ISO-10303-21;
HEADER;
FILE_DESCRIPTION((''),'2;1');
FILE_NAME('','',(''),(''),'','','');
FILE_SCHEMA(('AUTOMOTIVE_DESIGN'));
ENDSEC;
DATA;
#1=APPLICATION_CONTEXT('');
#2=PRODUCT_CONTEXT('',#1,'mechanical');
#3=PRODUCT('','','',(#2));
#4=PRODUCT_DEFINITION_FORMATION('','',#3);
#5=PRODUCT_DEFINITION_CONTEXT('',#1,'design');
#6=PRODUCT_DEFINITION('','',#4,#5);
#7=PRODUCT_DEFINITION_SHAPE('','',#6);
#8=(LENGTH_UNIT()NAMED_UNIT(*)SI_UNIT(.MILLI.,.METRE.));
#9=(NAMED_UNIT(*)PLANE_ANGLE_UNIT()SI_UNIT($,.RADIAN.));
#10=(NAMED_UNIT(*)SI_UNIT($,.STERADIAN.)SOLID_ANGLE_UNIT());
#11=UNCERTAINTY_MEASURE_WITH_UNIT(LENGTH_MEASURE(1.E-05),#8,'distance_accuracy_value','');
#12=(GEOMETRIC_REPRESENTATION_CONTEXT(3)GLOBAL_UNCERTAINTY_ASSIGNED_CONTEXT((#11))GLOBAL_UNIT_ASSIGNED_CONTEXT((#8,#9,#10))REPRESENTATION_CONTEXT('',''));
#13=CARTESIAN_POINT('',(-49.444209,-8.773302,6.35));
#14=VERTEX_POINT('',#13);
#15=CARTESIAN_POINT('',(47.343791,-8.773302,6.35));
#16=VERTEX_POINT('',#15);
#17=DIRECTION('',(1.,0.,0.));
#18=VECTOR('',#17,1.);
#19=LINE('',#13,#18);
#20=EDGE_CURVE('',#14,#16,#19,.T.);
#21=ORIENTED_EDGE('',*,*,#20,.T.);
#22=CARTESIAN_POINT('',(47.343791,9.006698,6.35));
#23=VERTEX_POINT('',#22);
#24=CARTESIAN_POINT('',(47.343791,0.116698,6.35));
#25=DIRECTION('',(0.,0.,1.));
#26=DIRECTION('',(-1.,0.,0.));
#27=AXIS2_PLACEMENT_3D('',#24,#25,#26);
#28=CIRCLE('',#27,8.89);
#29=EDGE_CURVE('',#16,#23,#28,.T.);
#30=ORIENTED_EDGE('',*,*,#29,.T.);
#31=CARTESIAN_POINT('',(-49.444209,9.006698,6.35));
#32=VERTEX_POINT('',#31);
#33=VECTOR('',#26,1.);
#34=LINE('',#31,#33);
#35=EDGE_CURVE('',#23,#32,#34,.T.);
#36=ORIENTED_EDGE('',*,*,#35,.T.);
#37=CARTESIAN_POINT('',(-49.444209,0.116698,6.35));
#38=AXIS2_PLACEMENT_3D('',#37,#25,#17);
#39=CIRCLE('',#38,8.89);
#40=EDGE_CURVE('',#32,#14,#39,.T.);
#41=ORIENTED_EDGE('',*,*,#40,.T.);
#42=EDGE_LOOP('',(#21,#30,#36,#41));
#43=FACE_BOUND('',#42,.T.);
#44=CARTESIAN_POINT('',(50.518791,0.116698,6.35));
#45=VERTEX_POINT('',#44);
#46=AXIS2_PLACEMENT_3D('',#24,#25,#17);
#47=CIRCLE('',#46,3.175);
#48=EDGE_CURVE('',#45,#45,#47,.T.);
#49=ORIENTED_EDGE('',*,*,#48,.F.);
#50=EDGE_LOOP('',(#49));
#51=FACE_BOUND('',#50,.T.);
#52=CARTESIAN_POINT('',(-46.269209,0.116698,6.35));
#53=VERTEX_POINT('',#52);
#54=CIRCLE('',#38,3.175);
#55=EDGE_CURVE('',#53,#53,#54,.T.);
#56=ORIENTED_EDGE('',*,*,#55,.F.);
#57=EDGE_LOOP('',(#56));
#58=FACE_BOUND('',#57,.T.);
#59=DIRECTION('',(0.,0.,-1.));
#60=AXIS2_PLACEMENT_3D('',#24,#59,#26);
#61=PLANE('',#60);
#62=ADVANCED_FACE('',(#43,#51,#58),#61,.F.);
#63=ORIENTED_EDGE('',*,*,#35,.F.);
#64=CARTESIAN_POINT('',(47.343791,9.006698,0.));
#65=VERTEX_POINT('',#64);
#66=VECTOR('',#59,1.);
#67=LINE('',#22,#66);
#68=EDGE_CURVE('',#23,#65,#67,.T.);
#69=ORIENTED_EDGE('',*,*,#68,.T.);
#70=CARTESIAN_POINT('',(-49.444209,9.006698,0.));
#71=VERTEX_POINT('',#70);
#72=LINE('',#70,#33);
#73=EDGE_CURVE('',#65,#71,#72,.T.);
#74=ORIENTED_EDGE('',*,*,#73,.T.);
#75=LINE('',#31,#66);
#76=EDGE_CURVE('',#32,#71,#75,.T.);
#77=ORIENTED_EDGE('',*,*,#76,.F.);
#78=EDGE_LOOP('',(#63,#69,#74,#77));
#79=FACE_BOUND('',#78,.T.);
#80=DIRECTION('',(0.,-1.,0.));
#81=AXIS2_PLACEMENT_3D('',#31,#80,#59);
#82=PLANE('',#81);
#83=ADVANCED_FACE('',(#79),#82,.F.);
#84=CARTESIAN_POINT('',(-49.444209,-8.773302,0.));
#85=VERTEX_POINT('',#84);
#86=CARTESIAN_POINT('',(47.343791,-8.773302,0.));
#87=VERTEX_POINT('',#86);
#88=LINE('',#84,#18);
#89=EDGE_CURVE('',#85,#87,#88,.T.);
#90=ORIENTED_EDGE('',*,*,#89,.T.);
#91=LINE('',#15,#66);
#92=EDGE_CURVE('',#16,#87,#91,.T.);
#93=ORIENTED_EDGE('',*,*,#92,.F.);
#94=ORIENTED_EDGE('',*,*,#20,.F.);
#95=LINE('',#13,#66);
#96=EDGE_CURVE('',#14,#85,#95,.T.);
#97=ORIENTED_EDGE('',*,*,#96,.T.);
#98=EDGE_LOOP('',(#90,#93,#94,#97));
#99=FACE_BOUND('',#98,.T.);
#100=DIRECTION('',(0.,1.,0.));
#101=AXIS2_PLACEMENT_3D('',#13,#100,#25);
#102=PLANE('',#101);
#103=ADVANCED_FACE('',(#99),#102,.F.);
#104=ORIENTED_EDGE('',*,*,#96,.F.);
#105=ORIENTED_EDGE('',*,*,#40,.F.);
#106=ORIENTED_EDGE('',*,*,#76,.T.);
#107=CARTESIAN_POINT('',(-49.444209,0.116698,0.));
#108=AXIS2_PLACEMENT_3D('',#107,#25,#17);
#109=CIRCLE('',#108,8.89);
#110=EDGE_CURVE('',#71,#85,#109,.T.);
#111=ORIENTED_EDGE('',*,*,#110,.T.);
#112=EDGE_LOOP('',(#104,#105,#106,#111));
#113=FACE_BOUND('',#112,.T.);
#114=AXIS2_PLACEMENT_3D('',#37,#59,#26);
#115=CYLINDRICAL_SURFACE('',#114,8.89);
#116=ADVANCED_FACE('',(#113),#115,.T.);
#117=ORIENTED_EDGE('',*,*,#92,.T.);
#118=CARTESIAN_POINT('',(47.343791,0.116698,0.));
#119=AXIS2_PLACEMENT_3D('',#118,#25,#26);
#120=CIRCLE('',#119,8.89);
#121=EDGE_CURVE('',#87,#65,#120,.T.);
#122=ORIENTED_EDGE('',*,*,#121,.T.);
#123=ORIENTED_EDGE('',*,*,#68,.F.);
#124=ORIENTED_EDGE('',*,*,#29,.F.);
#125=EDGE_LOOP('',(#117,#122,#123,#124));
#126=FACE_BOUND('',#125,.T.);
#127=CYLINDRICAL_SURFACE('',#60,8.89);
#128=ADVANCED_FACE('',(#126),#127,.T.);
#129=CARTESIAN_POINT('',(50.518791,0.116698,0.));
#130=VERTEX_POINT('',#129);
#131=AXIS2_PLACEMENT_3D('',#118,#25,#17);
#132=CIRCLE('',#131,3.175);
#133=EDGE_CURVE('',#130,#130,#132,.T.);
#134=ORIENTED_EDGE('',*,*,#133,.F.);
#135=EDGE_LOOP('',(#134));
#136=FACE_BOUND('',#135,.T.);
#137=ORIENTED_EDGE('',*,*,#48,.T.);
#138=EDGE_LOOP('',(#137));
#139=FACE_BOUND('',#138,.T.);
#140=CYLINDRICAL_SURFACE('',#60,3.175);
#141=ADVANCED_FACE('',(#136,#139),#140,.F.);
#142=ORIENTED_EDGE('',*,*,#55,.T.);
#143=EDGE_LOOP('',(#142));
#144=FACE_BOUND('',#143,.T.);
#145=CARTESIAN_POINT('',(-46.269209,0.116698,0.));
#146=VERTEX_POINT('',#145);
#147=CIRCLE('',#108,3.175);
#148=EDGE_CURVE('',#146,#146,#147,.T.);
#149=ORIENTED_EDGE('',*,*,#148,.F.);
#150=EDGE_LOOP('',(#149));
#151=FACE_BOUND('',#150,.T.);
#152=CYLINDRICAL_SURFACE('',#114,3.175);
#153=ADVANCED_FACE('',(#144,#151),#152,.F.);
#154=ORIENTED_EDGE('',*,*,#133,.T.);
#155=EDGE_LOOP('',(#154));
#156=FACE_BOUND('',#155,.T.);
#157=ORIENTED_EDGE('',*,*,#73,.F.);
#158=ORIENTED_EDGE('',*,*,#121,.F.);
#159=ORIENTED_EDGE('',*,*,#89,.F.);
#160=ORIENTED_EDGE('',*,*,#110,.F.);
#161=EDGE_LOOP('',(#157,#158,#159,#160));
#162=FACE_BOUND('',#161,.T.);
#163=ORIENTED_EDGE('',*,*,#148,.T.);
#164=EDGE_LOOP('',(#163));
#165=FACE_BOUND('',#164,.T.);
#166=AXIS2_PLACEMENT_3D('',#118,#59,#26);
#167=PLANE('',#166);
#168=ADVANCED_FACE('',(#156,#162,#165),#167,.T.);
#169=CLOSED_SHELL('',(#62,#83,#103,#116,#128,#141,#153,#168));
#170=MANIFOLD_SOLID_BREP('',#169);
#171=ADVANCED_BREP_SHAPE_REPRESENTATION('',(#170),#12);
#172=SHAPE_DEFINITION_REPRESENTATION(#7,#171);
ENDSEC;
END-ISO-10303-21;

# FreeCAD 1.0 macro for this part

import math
import FreeCAD as App
import Part
import Sketcher

V = App.Vector
Q = App.Units.Quantity

doc = App.newDocument("Part")
body = doc.addObject("PartDesign::Body", "Body")

# Sketch on XY plane
sketch1 = doc.addObject("Sketcher::SketchObject", "Sketch")
body.addObject(sketch1)
sketch1.AttachmentSupport = (doc.XY_Plane, [""])
sketch1.MapMode = "FlatFace"
sketch1.addGeometry([
    Part.LineSegment(V(-49.444209, -8.773302, 0), V(47.343791, -8.773302, 0)),  # 0
    Part.ArcOfCircle(Part.Circle(V(47.343791, 0.116698, 0), V(0, 0, 1), 8.89), math.radians(-90), math.radians(90)),  # 1
    Part.LineSegment(V(47.343791, 9.006698, 0), V(-49.444209, 9.006698, 0)),  # 2
    Part.ArcOfCircle(Part.Circle(V(-49.444209, 0.116698, 0), V(0, 0, 1), 8.89), math.radians(90), math.radians(270)),  # 3
    Part.Circle(V(-49.444209, 0.116698, 0), V(0, 0, 1), 3.175),  # 4
    Part.Circle(V(47.343791, 0.116698, 0), V(0, 0, 1), 3.175),  # 5
], False)
sketch1.addConstraint([
    Sketcher.Constraint("Tangent", 0, 2, 1, 1),
    Sketcher.Constraint("Tangent", 1, 2, 2, 1),
    Sketcher.Constraint("Tangent", 2, 2, 3, 1),
    Sketcher.Constraint("Tangent", 3, 2, 0, 1),
    Sketcher.Constraint("Horizontal", 0),
    Sketcher.Constraint("Horizontal", 2),
    Sketcher.Constraint("Coincident", 4, 3, 3, 3),
    Sketcher.Constraint("Coincident", 5, 3, 1, 3),
    Sketcher.Constraint("Equal", 4, 5),
    Sketcher.Constraint("Diameter", 4, Q("0.25 in")),
    Sketcher.Constraint("Radius", 1, Q("0.35 in")),
    Sketcher.Constraint("DistanceX", 0, 1, 0, 2, Q("96.788 mm")),
    Sketcher.Constraint("DistanceX", -1, 1, 1, 3, Q("47.343791 mm")),
    Sketcher.Constraint("DistanceY", -1, 1, 1, 3, Q("0.116698 mm")),
])
pad1 = doc.addObject("PartDesign::Pad", "Pad")
body.addObject(pad1)
pad1.Profile = sketch1
pad1.Length = Q("0.25 in")

doc.recompute()
